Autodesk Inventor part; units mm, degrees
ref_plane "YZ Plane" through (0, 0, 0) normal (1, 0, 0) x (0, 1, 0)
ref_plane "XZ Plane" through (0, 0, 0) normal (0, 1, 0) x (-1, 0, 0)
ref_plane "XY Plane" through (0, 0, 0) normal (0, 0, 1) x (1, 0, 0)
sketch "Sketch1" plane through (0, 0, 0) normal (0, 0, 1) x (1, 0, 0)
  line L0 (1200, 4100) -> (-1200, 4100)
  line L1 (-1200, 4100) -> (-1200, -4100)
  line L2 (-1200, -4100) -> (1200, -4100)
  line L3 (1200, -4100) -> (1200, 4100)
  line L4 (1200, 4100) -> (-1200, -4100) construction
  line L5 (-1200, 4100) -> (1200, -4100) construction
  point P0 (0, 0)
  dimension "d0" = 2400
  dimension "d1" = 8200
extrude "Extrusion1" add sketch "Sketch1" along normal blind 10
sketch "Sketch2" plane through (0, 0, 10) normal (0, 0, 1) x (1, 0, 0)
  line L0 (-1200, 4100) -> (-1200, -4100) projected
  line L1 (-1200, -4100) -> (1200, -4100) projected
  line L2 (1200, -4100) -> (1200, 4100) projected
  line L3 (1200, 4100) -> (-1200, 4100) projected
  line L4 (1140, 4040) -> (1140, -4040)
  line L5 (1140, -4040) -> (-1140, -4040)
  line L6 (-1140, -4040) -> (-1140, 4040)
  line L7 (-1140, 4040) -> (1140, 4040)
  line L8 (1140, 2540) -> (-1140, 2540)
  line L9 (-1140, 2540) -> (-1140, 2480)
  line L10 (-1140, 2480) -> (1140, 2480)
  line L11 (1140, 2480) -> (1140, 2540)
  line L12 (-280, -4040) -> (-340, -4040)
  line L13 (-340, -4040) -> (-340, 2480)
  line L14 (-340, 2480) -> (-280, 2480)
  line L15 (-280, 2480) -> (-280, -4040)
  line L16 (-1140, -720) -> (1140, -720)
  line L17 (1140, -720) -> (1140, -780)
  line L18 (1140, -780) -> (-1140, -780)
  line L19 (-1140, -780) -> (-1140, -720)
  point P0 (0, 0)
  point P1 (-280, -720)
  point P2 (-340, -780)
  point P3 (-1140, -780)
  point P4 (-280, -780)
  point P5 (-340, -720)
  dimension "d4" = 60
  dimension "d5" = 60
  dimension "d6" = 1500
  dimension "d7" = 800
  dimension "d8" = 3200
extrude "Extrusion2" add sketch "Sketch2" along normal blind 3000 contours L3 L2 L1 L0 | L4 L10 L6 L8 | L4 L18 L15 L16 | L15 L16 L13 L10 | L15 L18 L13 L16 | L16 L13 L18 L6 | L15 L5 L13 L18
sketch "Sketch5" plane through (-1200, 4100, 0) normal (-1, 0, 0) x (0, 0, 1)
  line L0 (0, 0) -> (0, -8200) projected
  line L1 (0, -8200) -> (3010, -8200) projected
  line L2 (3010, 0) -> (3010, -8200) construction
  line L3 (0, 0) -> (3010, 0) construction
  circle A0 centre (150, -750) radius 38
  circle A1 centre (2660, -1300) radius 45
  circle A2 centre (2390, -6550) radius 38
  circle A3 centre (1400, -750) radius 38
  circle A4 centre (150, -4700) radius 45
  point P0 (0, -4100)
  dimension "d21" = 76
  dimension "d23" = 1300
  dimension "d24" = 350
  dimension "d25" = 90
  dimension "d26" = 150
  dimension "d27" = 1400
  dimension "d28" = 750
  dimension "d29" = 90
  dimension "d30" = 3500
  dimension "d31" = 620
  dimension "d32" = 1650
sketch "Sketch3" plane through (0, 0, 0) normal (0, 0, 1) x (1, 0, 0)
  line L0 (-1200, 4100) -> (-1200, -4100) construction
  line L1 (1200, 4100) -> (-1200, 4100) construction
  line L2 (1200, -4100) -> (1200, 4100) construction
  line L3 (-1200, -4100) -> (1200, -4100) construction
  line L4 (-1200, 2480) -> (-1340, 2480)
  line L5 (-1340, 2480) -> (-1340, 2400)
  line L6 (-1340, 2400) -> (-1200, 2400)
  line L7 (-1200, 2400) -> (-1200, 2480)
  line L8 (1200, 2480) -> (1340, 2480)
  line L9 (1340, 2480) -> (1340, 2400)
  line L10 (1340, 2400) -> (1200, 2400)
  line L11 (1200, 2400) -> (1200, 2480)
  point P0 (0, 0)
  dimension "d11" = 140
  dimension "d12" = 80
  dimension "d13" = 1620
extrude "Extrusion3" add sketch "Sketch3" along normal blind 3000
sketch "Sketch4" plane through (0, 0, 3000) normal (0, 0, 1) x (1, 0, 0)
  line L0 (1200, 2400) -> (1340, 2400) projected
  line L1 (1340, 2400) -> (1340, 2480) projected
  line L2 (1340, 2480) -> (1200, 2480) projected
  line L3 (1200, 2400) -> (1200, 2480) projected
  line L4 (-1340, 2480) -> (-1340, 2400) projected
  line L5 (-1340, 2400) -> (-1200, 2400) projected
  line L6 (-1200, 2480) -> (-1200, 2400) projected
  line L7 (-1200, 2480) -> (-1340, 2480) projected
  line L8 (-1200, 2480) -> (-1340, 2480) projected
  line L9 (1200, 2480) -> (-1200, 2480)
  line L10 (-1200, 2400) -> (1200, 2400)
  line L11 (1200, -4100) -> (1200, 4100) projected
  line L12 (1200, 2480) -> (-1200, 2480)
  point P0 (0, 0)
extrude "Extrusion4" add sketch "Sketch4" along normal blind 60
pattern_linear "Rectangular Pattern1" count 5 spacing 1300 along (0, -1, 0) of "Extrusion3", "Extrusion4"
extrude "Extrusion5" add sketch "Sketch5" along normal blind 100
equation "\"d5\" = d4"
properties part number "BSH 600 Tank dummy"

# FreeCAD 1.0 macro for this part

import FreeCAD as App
import Part
import Sketcher

V = App.Vector
Q = App.Units.Quantity

doc = App.newDocument("Part")
body = doc.addObject("PartDesign::Body", "Body")

sketch1 = body.newObject("Sketcher::SketchObject", "Sketch")
sketch1.AttachmentSupport = (doc.getObject("XY_Plane"), [""])
sketch1.MapMode = "FlatFace"
sketch1.addGeometry([
    Part.LineSegment(V(1200, -4100, 0), V(1200, 4100, 0)),
    Part.LineSegment(V(1200, 4100, 0), V(-1200, 4100, 0)),
    Part.LineSegment(V(-1200, 4100, 0), V(-1200, -4100, 0)),
    Part.LineSegment(V(-1200, -4100, 0), V(1200, -4100, 0)),
], False)
sketch1.addConstraint([
    Sketcher.Constraint("Coincident", 0, 2, 1, 1),
    Sketcher.Constraint("Coincident", 1, 2, 2, 1),
    Sketcher.Constraint("Coincident", 2, 2, 3, 1),
    Sketcher.Constraint("Coincident", 3, 2, 0, 1),
    Sketcher.Constraint("Vertical", 0),
    Sketcher.Constraint("Horizontal", 1),
    Sketcher.Constraint("Vertical", 2),
    Sketcher.Constraint("Horizontal", 3),
    Sketcher.Constraint("Symmetric", 0, 2, 2, 2, -1, 1),
    Sketcher.Constraint("DistanceX", 1, 2, 1, 1, Q("2400 mm")),
    Sketcher.Constraint("DistanceY", 0, 1, 0, 2, Q("8200 mm")),
])
pad1 = body.newObject("PartDesign::Pad", "Pad")
pad1.Profile = sketch1
pad1.Length = 10

sketch2 = body.newObject("Sketcher::SketchObject", "Sketch001")
sketch2.AttachmentSupport = (doc.getObject("XY_Plane"), [""])
sketch2.MapMode = "FlatFace"
sketch2.AttachmentOffset = App.Placement(V(0, 0, 10), App.Rotation())
sketch2.addGeometry([
    Part.LineSegment(V(1200, 4100, 0), V(-1200, 4100, 0)),
    Part.LineSegment(V(-1200, 4100, 0), V(-1200, -4100, 0)),
    Part.LineSegment(V(-1200, -4100, 0), V(1200, -4100, 0)),
    Part.LineSegment(V(1200, -4100, 0), V(1200, 4100, 0)),
    Part.LineSegment(V(-1140, 4040, 0), V(1140, 4040, 0)),
    Part.LineSegment(V(1140, 4040, 0), V(1140, 2540, 0)),
    Part.LineSegment(V(1140, 2540, 0), V(-1140, 2540, 0)),
    Part.LineSegment(V(-1140, 2540, 0), V(-1140, 4040, 0)),
    Part.LineSegment(V(-1140, -720, 0), V(-1140, 2480, 0)),
    Part.LineSegment(V(-1140, 2480, 0), V(-340, 2480, 0)),
    Part.LineSegment(V(-340, 2480, 0), V(-340, -720, 0)),
    Part.LineSegment(V(-340, -720, 0), V(-1140, -720, 0)),
    Part.LineSegment(V(-1140, -4040, 0), V(-1140, -780, 0)),
    Part.LineSegment(V(-1140, -780, 0), V(-340, -780, 0)),
    Part.LineSegment(V(-340, -780, 0), V(-340, -4040, 0)),
    Part.LineSegment(V(-340, -4040, 0), V(-1140, -4040, 0)),
    Part.LineSegment(V(1140, -4040, 0), V(-280, -4040, 0)),
    Part.LineSegment(V(-280, -4040, 0), V(-280, -780, 0)),
    Part.LineSegment(V(-280, -780, 0), V(1140, -780, 0)),
    Part.LineSegment(V(1140, -780, 0), V(1140, -4040, 0)),
    Part.LineSegment(V(1140, 2480, 0), V(1140, -720, 0)),
    Part.LineSegment(V(1140, -720, 0), V(-280, -720, 0)),
    Part.LineSegment(V(-280, -720, 0), V(-280, 2480, 0)),
    Part.LineSegment(V(-280, 2480, 0), V(1140, 2480, 0)),
], False)
sketch2.addConstraint([
    Sketcher.Constraint("Coincident", 0, 2, 1, 1),
    Sketcher.Constraint("Coincident", 1, 2, 2, 1),
    Sketcher.Constraint("Coincident", 2, 2, 3, 1),
    Sketcher.Constraint("Coincident", 3, 2, 0, 1),
    Sketcher.Constraint("Coincident", 4, 2, 5, 1),
    Sketcher.Constraint("Coincident", 5, 2, 6, 1),
    Sketcher.Constraint("Coincident", 6, 2, 7, 1),
    Sketcher.Constraint("Coincident", 7, 2, 4, 1),
    Sketcher.Constraint("Coincident", 8, 2, 9, 1),
    Sketcher.Constraint("Coincident", 9, 2, 10, 1),
    Sketcher.Constraint("Coincident", 10, 2, 11, 1),
    Sketcher.Constraint("Coincident", 11, 2, 8, 1),
    Sketcher.Constraint("Coincident", 12, 2, 13, 1),
    Sketcher.Constraint("Coincident", 13, 2, 14, 1),
    Sketcher.Constraint("Coincident", 14, 2, 15, 1),
    Sketcher.Constraint("Coincident", 15, 2, 12, 1),
    Sketcher.Constraint("Coincident", 16, 2, 17, 1),
    Sketcher.Constraint("Coincident", 17, 2, 18, 1),
    Sketcher.Constraint("Coincident", 18, 2, 19, 1),
    Sketcher.Constraint("Coincident", 19, 2, 16, 1),
    Sketcher.Constraint("Coincident", 20, 2, 21, 1),
    Sketcher.Constraint("Coincident", 21, 2, 22, 1),
    Sketcher.Constraint("Coincident", 22, 2, 23, 1),
    Sketcher.Constraint("Coincident", 23, 2, 20, 1),
    Sketcher.Constraint("Horizontal", 0),
    Sketcher.Constraint("Vertical", 1),
    Sketcher.Constraint("Horizontal", 2),
    Sketcher.Constraint("Vertical", 3),
    Sketcher.Constraint("Horizontal", 4),
    Sketcher.Constraint("Vertical", 5),
    Sketcher.Constraint("Horizontal", 6),
    Sketcher.Constraint("Vertical", 7),
    Sketcher.Constraint("Vertical", 8),
    Sketcher.Constraint("Horizontal", 9),
    Sketcher.Constraint("Vertical", 10),
    Sketcher.Constraint("Horizontal", 11),
    Sketcher.Constraint("Vertical", 12),
    Sketcher.Constraint("Horizontal", 13),
    Sketcher.Constraint("Vertical", 14),
    Sketcher.Constraint("Horizontal", 15),
    Sketcher.Constraint("Horizontal", 16),
    Sketcher.Constraint("Vertical", 17),
    Sketcher.Constraint("Horizontal", 18),
    Sketcher.Constraint("Vertical", 19),
    Sketcher.Constraint("Vertical", 20),
    Sketcher.Constraint("Horizontal", 21),
    Sketcher.Constraint("Vertical", 22),
    Sketcher.Constraint("Horizontal", 23),
    Sketcher.Constraint("Symmetric", 0, 2, 2, 2, -1, 1),
    Sketcher.Constraint("Symmetric", 4, 2, 15, 2, -1, 1),
    Sketcher.Constraint("Symmetric", 7, 2, 19, 2, -1, 1),
    Sketcher.Constraint("Symmetric", 12, 2, 18, 2, -2),
    Sketcher.Constraint("Symmetric", 11, 2, 20, 2, -2),
    Sketcher.Constraint("Horizontal", 9, 2, 22, 2),
    Sketcher.Constraint("Vertical", 7, 2, 8, 2),
    Sketcher.Constraint("Vertical", 10, 2, 13, 2),
    Sketcher.Constraint("Vertical", 17, 2, 21, 2),
    Sketcher.Constraint("DistanceX", 9, 1, 9, 2, Q("800 mm")),
    Sketcher.Constraint("DistanceY", 5, 2, 5, 1, Q("1500 mm")),
    Sketcher.Constraint("DistanceY", 8, 1, 8, 2, Q("3200 mm")),
    Sketcher.Constraint("DistanceX", 4, 2, 3, 2, Q("60 mm")),
    Sketcher.Constraint("DistanceY", 4, 2, 3, 2, Q("60 mm")),
    Sketcher.Constraint("DistanceY", 8, 2, 6, 2, Q("60 mm")),
    Sketcher.Constraint("DistanceY", 12, 2, 11, 2, Q("60 mm")),
    Sketcher.Constraint("DistanceX", 14, 2, 16, 2, Q("60 mm")),
    Sketcher.Constraint("DistanceX", 0, 2, 0, 1, Q("2400 mm")),
    Sketcher.Constraint("DistanceY", 1, 2, 1, 1, Q("8200 mm")),
])
pad2 = body.newObject("PartDesign::Pad", "Pad001")
pad2.Profile = sketch2
pad2.Length = 3000

sketch3 = body.newObject("Sketcher::SketchObject", "Sketch002")
sketch3.AttachmentSupport = (doc.getObject("XY_Plane"), [""])
sketch3.MapMode = "FlatFace"
sketch3.addGeometry([
    Part.LineSegment(V(-1200, 2400, 0), V(-1200, 2480, 0)),
    Part.LineSegment(V(-1200, 2480, 0), V(-1340, 2480, 0)),
    Part.LineSegment(V(-1340, 2480, 0), V(-1340, 2400, 0)),
    Part.LineSegment(V(-1340, 2400, 0), V(-1200, 2400, 0)),
    Part.LineSegment(V(1340, 2480, 0), V(1200, 2480, 0)),
    Part.LineSegment(V(1200, 2480, 0), V(1200, 2400, 0)),
    Part.LineSegment(V(1200, 2400, 0), V(1340, 2400, 0)),
    Part.LineSegment(V(1340, 2400, 0), V(1340, 2480, 0)),
], False)
sketch3.addConstraint([
    Sketcher.Constraint("Coincident", 0, 2, 1, 1),
    Sketcher.Constraint("Coincident", 1, 2, 2, 1),
    Sketcher.Constraint("Coincident", 2, 2, 3, 1),
    Sketcher.Constraint("Coincident", 3, 2, 0, 1),
    Sketcher.Constraint("Coincident", 4, 2, 5, 1),
    Sketcher.Constraint("Coincident", 5, 2, 6, 1),
    Sketcher.Constraint("Coincident", 6, 2, 7, 1),
    Sketcher.Constraint("Coincident", 7, 2, 4, 1),
    Sketcher.Constraint("Vertical", 0),
    Sketcher.Constraint("Horizontal", 1),
    Sketcher.Constraint("Vertical", 2),
    Sketcher.Constraint("Horizontal", 3),
    Sketcher.Constraint("Horizontal", 4),
    Sketcher.Constraint("Vertical", 5),
    Sketcher.Constraint("Horizontal", 6),
    Sketcher.Constraint("Vertical", 7),
    Sketcher.Constraint("Symmetric", 0, 2, 4, 2, -2),
    Sketcher.Constraint("Symmetric", 2, 2, 6, 2, -2),
    Sketcher.Constraint("DistanceX", 1, 2, 1, 1, Q("140 mm")),
    Sketcher.Constraint("DistanceY", 0, 1, 0, 2, Q("80 mm")),
    Sketcher.Constraint("DistanceX", 0, 2, -1, 1, Q("1200 mm")),
    Sketcher.Constraint("DistanceY", -1, 1, 0, 2, Q("2480 mm")),
])
pad3 = body.newObject("PartDesign::Pad", "Pad002")
pad3.Profile = sketch3
pad3.Length = 3000

sketch4 = body.newObject("Sketcher::SketchObject", "Sketch003")
sketch4.AttachmentSupport = (doc.getObject("XY_Plane"), [""])
sketch4.MapMode = "FlatFace"
sketch4.AttachmentOffset = App.Placement(V(0, 0, 3000), App.Rotation())
sketch4.addGeometry([
    Part.LineSegment(V(1340, 2480, 0), V(-1340, 2480, 0)),
    Part.LineSegment(V(-1340, 2480, 0), V(-1340, 2400, 0)),
    Part.LineSegment(V(-1340, 2400, 0), V(1340, 2400, 0)),
    Part.LineSegment(V(1340, 2400, 0), V(1340, 2480, 0)),
], False)
sketch4.addConstraint([
    Sketcher.Constraint("Coincident", 0, 2, 1, 1),
    Sketcher.Constraint("Coincident", 1, 2, 2, 1),
    Sketcher.Constraint("Coincident", 2, 2, 3, 1),
    Sketcher.Constraint("Coincident", 3, 2, 0, 1),
    Sketcher.Constraint("Horizontal", 0),
    Sketcher.Constraint("Vertical", 1),
    Sketcher.Constraint("Horizontal", 2),
    Sketcher.Constraint("Vertical", 3),
    Sketcher.Constraint("DistanceX", 0, 2, 0, 1, Q("2680 mm")),
    Sketcher.Constraint("DistanceY", 1, 2, 1, 1, Q("80 mm")),
    Sketcher.Constraint("DistanceX", 0, 2, -1, 1, Q("1340 mm")),
    Sketcher.Constraint("DistanceY", -1, 1, 0, 2, Q("2480 mm")),
])
pad4 = body.newObject("PartDesign::Pad", "Pad003")
pad4.Profile = sketch4
pad4.Length = 60
doc.recompute()

linearpattern = body.newObject("PartDesign::LinearPattern", "LinearPattern")
linearpattern.Originals = [pad3, pad4]
linearpattern.Direction = (doc.getObject("Y_Axis"), [""])
linearpattern.Mode = "offset"
linearpattern.Offset = 1300
linearpattern.Occurrences = 5
linearpattern.Reversed = True
body.Tip = linearpattern

sketch5 = body.newObject("Sketcher::SketchObject", "Sketch004")
sketch5.AttachmentSupport = (doc.getObject("YZ_Plane"), [""])
sketch5.MapMode = "FlatFace"
sketch5.AttachmentOffset = App.Placement(V(0, 0, -1200), App.Rotation())
sketch5.addGeometry([
    Part.Circle(V(3350, 150, 0), V(0, 0, 1), 38),
    Part.Circle(V(2800, 2660, 0), V(0, 0, 1), 45),
    Part.Circle(V(-2450, 2390, 0), V(0, 0, 1), 38),
    Part.Circle(V(3350, 1400, 0), V(0, 0, 1), 38),
    Part.Circle(V(-600, 150, 0), V(0, 0, 1), 45),
], False)
sketch5.addConstraint([
    Sketcher.Constraint("Equal", 0, 2),
    Sketcher.Constraint("Equal", 2, 3),
    Sketcher.Constraint("Equal", 1, 4),
    Sketcher.Constraint("Horizontal", 0, 3, 4, 3),
    Sketcher.Constraint("Vertical", 0, 3, 3, 3),
    Sketcher.Constraint("Diameter", 0, Q("76 mm")),
    Sketcher.Constraint("Diameter", 1, Q("90 mm")),
    Sketcher.Constraint("DistanceY", -1, 1, 0, 3, Q("150 mm")),
    Sketcher.Constraint("DistanceY", -1, 1, 3, 3, Q("1400 mm")),
    Sketcher.Constraint("DistanceX", -1, 1, 0, 3, Q("3350 mm")),
    Sketcher.Constraint("DistanceX", -1, 1, 1, 3, Q("2800 mm")),
    Sketcher.Constraint("DistanceY", -1, 1, 1, 3, Q("2660 mm")),
    Sketcher.Constraint("DistanceX", 2, 3, -1, 1, Q("2450 mm")),
    Sketcher.Constraint("DistanceY", -1, 1, 2, 3, Q("2390 mm")),
    Sketcher.Constraint("DistanceX", 4, 3, -1, 1, Q("600 mm")),
])
pad5 = body.newObject("PartDesign::Pad", "Pad004")
pad5.Profile = sketch5
pad5.Length = 100
pad5.Reversed = True

doc.recompute()
